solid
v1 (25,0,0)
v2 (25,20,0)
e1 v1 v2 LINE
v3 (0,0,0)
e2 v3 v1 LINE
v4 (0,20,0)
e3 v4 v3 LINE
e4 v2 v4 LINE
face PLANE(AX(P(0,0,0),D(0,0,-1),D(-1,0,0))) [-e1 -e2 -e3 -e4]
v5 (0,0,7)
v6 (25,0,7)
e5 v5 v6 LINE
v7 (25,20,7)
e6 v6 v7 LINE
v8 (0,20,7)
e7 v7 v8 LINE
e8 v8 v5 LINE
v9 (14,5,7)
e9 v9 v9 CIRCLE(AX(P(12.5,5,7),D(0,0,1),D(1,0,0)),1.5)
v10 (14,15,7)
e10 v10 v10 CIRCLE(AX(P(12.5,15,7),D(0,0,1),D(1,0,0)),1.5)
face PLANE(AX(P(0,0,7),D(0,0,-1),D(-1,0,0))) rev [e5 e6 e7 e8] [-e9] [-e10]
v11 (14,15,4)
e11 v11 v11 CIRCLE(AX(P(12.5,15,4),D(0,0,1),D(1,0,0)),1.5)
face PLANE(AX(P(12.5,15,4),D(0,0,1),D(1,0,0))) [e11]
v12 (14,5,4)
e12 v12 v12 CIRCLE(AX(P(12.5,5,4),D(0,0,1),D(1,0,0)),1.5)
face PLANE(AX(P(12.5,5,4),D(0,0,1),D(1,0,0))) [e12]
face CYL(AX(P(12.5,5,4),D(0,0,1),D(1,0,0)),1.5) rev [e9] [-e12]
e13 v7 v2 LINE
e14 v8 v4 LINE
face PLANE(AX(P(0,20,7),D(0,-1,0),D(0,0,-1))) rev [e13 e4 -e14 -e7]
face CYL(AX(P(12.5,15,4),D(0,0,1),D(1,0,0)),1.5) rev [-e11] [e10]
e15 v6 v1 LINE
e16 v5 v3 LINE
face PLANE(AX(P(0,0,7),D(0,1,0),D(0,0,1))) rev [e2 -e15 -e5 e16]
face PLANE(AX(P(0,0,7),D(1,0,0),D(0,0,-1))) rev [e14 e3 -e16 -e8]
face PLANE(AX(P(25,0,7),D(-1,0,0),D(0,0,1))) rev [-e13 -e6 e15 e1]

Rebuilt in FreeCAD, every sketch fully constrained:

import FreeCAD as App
import Part
import Sketcher
Q = App.Units.Quantity

doc = App.newDocument("Part")
params = doc.addObject("Spreadsheet::Sheet", "Params")
for row, (alias, value) in enumerate([
    ("sketch1_width", "25 mm"),
    ("sketch1_height", "20 mm"),
    ("pad1_length", "7 mm"),
    ("sketch2_diameter", "3 mm"),
    ("pocket1_length", "3 mm"),
], start=1):
    params.set(f"A{row}", alias)
    params.set(f"B{row}", "=" + value)
    params.setAlias(f"B{row}", alias)

body = doc.addObject("PartDesign::Body", "Body")

# Sketch on XY plane
sketch1 = body.newObject("Sketcher::SketchObject", "Sketch")
sketch1.AttachmentSupport = (doc.getObject("XY_Plane"), [""])
sketch1.MapMode = "FlatFace"
sketch1.addGeometry([
    Part.LineSegment(App.Vector(0, 20, 0), App.Vector(0, 0, 0)),
    Part.LineSegment(App.Vector(0, 0, 0), App.Vector(25, 0, 0)),
    Part.LineSegment(App.Vector(25, 0, 0), App.Vector(25, 20, 0)),
    Part.LineSegment(App.Vector(25, 20, 0), App.Vector(0, 20, 0)),
], False)
sketch1.addConstraint([
    Sketcher.Constraint("Coincident", 0, 2, 1, 1),
    Sketcher.Constraint("Coincident", 1, 2, 2, 1),
    Sketcher.Constraint("Coincident", 2, 2, 3, 1),
    Sketcher.Constraint("Coincident", 3, 2, 0, 1),
    Sketcher.Constraint("Vertical", 0),
    Sketcher.Constraint("Horizontal", 1),
    Sketcher.Constraint("Vertical", 2),
    Sketcher.Constraint("Horizontal", 3),
    Sketcher.Constraint("Coincident", 0, 2, -1, 1),
    Sketcher.Constraint("DistanceX", 1, 1, 1, 2, Q("25 mm")),
    Sketcher.Constraint("DistanceY", 0, 2, 0, 1, Q("20 mm")),
])
sketch1.setExpression("Constraints[9]", "Params.sketch1_width")
sketch1.setExpression("Constraints[10]", "Params.sketch1_height")
pad1 = body.newObject("PartDesign::Pad", "Pad")
pad1.Profile = sketch1
pad1.setExpression("Length", "Params.pad1_length")

# Sketch on XY plane
sketch2 = body.newObject("Sketcher::SketchObject", "Sketch001")
sketch2.AttachmentSupport = (doc.getObject("XY_Plane"), [""])
sketch2.MapMode = "FlatFace"
sketch2.AttachmentOffset = App.Placement(App.Vector(0, 0, 7), App.Rotation())
sketch2.addGeometry([
    Part.Circle(App.Vector(12.5, 15, 0), App.Vector(0, 0, 1), 1.5),
    Part.Circle(App.Vector(12.5, 5, 0), App.Vector(0, 0, 1), 1.5),
], False)
sketch2.addConstraint([
    Sketcher.Constraint("Equal", 0, 1),
    Sketcher.Constraint("Vertical", 0, 3, 1, 3),
    Sketcher.Constraint("Diameter", 0, Q("3 mm")),
    Sketcher.Constraint("DistanceY", -1, 1, 0, 3, Q("15 mm")),
    Sketcher.Constraint("DistanceY", -1, 1, 1, 3, Q("5 mm")),
    Sketcher.Constraint("DistanceX", -1, 1, 0, 3, Q("12.5 mm")),
])
sketch2.setExpression("Constraints[2]", "Params.sketch2_diameter")
pocket1 = body.newObject("PartDesign::Pocket", "Pocket")
pocket1.Profile = sketch2
pocket1.setExpression("Length", "Params.pocket1_length")

doc.recompute()
